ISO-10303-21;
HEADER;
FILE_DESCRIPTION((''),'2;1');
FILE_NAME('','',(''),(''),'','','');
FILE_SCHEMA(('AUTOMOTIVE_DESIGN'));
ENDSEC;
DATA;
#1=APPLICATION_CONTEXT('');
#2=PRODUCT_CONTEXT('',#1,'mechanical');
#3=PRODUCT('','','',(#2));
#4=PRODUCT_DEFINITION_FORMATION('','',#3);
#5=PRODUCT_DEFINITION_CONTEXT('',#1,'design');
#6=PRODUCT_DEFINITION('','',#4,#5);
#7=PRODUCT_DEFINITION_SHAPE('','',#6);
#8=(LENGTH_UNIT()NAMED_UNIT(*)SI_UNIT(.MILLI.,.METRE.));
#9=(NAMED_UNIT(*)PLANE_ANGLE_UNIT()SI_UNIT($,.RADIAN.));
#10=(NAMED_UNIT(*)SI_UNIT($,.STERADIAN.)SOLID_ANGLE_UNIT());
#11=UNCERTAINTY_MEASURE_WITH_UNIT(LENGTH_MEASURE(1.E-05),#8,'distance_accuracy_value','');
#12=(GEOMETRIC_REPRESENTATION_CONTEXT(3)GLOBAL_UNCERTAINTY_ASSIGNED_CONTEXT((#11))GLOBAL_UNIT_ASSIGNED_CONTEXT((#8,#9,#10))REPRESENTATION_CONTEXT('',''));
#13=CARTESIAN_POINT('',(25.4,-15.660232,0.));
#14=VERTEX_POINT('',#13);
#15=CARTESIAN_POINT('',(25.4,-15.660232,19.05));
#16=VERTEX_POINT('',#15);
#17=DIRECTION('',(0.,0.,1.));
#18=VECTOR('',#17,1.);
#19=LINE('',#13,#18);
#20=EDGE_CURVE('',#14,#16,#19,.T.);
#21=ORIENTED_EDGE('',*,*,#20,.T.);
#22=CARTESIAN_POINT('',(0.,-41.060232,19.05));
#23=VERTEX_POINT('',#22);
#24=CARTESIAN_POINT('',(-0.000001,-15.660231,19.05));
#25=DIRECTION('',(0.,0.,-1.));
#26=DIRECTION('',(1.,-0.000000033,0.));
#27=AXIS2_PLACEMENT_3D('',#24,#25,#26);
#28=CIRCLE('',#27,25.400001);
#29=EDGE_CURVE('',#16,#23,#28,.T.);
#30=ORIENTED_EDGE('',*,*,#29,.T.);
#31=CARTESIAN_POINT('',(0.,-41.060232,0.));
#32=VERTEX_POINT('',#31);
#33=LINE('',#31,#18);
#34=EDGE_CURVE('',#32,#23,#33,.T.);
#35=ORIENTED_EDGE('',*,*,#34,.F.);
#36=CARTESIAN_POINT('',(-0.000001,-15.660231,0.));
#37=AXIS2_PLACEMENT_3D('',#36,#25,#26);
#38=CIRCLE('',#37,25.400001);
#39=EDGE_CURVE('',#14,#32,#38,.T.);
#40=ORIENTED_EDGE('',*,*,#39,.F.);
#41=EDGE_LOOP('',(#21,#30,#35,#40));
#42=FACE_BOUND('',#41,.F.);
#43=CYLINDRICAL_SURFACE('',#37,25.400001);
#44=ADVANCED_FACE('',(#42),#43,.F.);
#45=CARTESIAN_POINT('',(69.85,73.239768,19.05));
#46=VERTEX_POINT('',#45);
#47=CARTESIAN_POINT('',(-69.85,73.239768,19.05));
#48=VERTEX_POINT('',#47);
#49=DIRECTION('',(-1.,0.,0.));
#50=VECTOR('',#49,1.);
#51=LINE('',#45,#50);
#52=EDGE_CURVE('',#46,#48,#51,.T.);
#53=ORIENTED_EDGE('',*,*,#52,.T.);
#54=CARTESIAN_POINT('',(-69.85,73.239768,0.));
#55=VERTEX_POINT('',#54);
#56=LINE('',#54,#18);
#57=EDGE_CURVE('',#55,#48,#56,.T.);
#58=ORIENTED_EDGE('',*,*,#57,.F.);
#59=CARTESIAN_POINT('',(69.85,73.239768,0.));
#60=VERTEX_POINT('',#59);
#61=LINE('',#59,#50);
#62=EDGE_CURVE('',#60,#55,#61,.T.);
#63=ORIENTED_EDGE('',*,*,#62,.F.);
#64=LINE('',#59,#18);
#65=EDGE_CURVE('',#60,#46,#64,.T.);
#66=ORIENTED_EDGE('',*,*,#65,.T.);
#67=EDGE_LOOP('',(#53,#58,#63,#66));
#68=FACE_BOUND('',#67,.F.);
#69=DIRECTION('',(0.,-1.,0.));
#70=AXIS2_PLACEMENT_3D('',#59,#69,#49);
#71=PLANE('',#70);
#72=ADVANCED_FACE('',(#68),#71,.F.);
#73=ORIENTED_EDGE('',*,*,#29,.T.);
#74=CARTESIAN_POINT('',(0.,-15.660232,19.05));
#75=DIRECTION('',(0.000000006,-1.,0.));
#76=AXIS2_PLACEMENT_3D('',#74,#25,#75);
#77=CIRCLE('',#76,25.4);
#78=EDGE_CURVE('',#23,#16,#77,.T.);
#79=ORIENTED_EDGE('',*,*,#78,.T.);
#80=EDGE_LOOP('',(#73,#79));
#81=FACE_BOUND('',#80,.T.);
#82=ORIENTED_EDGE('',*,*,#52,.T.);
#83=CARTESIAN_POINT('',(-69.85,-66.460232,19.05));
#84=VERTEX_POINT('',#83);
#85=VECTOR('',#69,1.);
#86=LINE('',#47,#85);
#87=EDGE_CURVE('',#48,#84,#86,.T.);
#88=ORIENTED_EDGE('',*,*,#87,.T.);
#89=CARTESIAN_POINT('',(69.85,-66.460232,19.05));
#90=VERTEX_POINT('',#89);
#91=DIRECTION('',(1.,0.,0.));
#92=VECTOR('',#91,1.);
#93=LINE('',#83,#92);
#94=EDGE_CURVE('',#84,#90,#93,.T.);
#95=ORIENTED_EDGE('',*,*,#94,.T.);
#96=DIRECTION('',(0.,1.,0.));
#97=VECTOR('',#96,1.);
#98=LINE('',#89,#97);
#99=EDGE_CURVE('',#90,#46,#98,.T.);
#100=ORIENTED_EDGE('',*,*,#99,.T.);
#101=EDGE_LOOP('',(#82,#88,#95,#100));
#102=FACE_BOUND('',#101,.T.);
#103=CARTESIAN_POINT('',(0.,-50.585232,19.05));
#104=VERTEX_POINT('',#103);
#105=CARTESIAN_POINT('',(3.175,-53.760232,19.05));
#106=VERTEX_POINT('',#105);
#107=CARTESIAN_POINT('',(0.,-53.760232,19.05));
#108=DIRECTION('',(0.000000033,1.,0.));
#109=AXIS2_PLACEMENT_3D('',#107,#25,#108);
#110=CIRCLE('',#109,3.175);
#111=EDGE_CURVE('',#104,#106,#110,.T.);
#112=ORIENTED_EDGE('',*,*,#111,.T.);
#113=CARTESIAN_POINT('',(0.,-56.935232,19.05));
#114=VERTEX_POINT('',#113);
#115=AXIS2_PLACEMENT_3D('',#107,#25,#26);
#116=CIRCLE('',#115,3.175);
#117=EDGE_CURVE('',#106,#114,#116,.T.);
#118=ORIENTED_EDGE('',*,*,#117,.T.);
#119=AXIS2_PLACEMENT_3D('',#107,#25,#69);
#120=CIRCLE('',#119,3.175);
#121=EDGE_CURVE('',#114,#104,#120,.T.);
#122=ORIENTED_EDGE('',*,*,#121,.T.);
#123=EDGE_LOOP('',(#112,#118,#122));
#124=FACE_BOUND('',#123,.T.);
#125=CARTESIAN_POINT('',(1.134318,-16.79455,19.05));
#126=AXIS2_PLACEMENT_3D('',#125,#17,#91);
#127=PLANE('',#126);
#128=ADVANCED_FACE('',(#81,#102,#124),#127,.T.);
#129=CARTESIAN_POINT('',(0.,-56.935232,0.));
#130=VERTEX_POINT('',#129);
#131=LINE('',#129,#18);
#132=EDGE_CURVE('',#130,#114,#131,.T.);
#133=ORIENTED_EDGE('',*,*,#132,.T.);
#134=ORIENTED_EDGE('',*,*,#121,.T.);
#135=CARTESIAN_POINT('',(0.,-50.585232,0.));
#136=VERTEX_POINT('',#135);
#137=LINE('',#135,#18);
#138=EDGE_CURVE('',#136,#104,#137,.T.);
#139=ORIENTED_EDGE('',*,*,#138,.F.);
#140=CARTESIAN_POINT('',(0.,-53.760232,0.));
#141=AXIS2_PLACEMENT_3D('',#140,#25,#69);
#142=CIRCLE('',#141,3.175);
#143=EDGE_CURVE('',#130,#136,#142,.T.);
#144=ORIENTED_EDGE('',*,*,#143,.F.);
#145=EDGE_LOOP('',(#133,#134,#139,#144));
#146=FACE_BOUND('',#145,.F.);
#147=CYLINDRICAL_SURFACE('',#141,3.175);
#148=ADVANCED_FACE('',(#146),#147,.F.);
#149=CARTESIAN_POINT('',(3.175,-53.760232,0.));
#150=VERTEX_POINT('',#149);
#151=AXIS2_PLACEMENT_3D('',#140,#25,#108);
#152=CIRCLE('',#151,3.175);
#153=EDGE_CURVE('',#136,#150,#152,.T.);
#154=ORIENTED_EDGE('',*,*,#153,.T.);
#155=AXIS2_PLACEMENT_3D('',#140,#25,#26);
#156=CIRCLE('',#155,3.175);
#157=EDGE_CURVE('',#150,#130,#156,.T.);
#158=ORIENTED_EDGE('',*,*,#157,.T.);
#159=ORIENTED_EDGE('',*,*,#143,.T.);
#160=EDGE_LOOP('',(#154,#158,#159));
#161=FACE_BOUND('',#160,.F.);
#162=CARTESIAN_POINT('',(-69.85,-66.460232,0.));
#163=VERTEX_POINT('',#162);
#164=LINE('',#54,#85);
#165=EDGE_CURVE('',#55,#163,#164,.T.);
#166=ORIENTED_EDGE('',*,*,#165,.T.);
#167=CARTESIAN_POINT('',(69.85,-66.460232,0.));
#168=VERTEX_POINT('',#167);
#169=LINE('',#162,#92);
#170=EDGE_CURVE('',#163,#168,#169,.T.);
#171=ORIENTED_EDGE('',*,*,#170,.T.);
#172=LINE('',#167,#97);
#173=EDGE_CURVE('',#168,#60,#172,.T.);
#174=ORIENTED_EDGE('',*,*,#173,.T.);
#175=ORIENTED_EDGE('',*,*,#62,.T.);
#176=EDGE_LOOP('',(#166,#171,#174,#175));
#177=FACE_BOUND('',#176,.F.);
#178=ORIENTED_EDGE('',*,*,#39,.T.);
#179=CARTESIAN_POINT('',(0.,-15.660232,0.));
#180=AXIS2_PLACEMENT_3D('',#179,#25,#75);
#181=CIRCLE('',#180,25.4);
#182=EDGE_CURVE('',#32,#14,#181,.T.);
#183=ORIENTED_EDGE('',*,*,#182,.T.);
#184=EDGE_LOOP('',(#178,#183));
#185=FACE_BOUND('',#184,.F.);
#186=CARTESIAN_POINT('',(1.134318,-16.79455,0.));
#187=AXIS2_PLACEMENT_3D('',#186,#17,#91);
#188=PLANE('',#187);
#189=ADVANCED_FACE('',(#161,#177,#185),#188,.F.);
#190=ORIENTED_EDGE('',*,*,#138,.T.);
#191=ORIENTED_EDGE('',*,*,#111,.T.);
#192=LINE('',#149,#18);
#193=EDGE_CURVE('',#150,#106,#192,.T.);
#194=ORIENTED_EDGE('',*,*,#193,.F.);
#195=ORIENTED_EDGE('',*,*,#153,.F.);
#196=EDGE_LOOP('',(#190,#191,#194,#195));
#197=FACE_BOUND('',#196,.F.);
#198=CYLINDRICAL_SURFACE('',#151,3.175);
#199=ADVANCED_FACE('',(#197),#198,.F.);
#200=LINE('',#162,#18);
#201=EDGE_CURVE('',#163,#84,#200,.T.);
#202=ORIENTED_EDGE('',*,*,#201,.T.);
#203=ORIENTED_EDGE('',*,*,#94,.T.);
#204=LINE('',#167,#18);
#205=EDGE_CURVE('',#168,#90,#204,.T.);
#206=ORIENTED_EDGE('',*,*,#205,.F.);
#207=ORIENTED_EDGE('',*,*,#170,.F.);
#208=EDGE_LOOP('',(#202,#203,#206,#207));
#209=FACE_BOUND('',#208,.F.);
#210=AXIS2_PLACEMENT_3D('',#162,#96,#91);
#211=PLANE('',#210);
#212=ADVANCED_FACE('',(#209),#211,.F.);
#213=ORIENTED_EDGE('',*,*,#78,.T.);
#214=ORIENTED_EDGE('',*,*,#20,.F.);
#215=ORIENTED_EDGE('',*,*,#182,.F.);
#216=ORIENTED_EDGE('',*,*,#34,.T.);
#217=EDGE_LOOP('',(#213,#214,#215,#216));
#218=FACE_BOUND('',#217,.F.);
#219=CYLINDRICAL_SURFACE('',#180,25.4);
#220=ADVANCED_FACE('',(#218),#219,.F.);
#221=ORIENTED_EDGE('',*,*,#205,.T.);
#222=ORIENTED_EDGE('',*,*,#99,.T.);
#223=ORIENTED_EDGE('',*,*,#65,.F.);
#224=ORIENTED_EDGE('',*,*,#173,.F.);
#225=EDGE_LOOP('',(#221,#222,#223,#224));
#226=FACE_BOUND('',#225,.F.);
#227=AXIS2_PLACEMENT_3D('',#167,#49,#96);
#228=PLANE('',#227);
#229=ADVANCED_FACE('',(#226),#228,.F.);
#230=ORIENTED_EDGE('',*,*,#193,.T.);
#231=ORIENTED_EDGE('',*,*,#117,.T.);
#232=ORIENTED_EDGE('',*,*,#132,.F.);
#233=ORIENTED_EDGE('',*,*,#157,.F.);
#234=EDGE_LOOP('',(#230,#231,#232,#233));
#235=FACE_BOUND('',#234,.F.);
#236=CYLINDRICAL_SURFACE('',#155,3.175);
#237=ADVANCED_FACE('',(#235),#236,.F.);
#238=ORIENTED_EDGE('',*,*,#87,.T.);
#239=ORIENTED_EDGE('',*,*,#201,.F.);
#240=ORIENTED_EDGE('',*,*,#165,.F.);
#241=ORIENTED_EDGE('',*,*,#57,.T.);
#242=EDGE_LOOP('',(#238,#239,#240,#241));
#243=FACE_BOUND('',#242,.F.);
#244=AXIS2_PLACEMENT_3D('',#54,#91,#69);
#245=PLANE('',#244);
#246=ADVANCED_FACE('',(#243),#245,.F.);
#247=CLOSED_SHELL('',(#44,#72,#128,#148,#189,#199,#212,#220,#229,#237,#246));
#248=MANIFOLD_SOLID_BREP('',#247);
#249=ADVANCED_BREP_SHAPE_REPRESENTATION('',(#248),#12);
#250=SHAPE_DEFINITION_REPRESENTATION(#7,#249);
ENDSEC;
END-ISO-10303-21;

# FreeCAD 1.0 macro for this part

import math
import FreeCAD as App
import Part
import Sketcher
Q = App.Units.Quantity

doc = App.newDocument("Part")
body = doc.addObject("PartDesign::Body", "Body")

sketch1 = body.newObject("Sketcher::SketchObject", "Sketch")
sketch1.AttachmentSupport = (doc.getObject("XY_Plane"), [""])
sketch1.MapMode = "FlatFace"
sketch1.addGeometry([
    Part.LineSegment(App.Vector(69.85, 73.239768, 0), App.Vector(-69.85, 73.239768, 0)),
    Part.LineSegment(App.Vector(-69.85, 73.239768, 0), App.Vector(-69.85, -66.460232, 0)),
    Part.LineSegment(App.Vector(-69.85, -66.460232, 0), App.Vector(69.85, -66.460232, 0)),
    Part.LineSegment(App.Vector(69.85, -66.460232, 0), App.Vector(69.85, 73.239768, 0)),
    Part.ArcOfCircle(Part.Circle(App.Vector(0, -53.760232, 0), App.Vector(0, 0, 1), 3.175), math.radians(0.000002), math.radians(89.999998)),
    Part.ArcOfCircle(Part.Circle(App.Vector(0, -53.760232, 0), App.Vector(0, 0, 1), 3.175), math.radians(-89.999998), math.radians(-0.000002)),
    Part.ArcOfCircle(Part.Circle(App.Vector(0, -53.760232, 0), App.Vector(0, 0, 1), 3.175), math.radians(90), math.radians(270)),
    Part.ArcOfCircle(Part.Circle(App.Vector(0, -15.660232, 0), App.Vector(0, 0, 1), 25.4), math.radians(0), math.radians(270)),
    Part.ArcOfCircle(Part.Circle(App.Vector(-0.000001, -15.660231, 0), App.Vector(0, 0, 1), 25.400001), math.radians(-89.999998), math.radians(-0.000002)),
], False)
sketch1.addConstraint([
    Sketcher.Constraint("Coincident", 0, 2, 1, 1),
    Sketcher.Constraint("Coincident", 1, 2, 2, 1),
    Sketcher.Constraint("Coincident", 2, 2, 3, 1),
    Sketcher.Constraint("Coincident", 3, 2, 0, 1),
    Sketcher.Constraint("Tangent", 4, 1, 5, 2),
    Sketcher.Constraint("Tangent", 5, 1, 6, 2),
    Sketcher.Constraint("Tangent", 6, 1, 4, 2),
    Sketcher.Constraint("Tangent", 7, 1, 8, 2),
    Sketcher.Constraint("Coincident", 8, 1, 7, 2),
    Sketcher.Constraint("Horizontal", 0),
    Sketcher.Constraint("Vertical", 1),
    Sketcher.Constraint("Horizontal", 2),
    Sketcher.Constraint("Vertical", 3),
    Sketcher.Constraint("PointOnObject", 4, 3, -2),
    Sketcher.Constraint("PointOnObject", 7, 3, -2),
    Sketcher.Constraint("PointOnObject", 5, 1, -2),
    Sketcher.Constraint("PointOnObject", 6, 1, -2),
    Sketcher.Constraint("PointOnObject", 8, 1, -2),
    Sketcher.Constraint("Horizontal", 6, 3, 4, 1),
    Sketcher.Constraint("Horizontal", 8, 3, 7, 1),
    Sketcher.Constraint("Equal", 2, 1),
    Sketcher.Constraint("Radius", 7, Q("1 in")),
    Sketcher.Constraint("DistanceX", 0, 2, 0, 1, Q("5.5 in")),
    Sketcher.Constraint("Radius", 4, Q("0.125 in")),
    Sketcher.Constraint("DistanceY", 5, 3, 0, 2, Q("5 in")),
    Sketcher.Constraint("DistanceY", 1, 2, 8, 3, Q("2 in")),
    Sketcher.Constraint("DistanceX", 0, 2, -1, 1, Q("2.75 in")),
    Sketcher.Constraint("DistanceY", 5, 3, -1, 1, 53.760232),
])
pad1 = body.newObject("PartDesign::Pad", "Pad")
pad1.Profile = sketch1
pad1.Length = Q("0.75 in")

doc.recompute()
